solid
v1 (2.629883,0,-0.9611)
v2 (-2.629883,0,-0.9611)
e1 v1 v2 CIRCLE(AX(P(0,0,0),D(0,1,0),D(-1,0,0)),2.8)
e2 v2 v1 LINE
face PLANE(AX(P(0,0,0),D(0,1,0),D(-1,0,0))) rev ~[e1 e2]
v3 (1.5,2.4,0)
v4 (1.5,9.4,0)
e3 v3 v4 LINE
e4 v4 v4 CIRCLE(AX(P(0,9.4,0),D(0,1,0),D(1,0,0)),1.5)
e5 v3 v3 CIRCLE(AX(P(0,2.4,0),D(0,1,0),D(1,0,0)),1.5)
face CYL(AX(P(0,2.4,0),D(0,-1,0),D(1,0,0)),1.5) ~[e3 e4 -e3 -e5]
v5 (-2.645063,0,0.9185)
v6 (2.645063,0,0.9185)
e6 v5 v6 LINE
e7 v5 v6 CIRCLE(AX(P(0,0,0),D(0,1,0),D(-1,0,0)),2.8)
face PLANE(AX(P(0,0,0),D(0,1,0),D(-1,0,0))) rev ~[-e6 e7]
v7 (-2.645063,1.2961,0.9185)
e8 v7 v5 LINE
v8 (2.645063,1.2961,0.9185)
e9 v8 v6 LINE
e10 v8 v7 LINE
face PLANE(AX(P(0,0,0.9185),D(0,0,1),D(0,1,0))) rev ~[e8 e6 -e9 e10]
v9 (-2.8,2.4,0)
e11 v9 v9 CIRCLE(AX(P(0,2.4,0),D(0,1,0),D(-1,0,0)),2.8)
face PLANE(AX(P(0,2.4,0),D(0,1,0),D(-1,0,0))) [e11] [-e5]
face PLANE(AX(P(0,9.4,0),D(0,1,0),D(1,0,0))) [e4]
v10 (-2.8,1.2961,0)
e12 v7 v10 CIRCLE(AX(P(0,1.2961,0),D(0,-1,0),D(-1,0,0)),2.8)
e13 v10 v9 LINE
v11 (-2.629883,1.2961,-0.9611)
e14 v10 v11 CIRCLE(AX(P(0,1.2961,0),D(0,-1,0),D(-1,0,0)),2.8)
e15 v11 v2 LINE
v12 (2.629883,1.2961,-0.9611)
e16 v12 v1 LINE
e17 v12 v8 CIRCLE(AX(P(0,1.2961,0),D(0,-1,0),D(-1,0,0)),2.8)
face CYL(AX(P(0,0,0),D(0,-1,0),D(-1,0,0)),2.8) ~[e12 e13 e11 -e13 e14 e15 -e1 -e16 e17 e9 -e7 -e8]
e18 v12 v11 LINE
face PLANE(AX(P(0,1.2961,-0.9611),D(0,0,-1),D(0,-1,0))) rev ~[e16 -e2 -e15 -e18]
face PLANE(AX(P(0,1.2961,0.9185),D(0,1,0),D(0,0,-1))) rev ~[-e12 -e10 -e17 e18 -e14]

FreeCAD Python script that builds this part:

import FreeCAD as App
import Part
import Sketcher

V = App.Vector
Q = App.Units.Quantity


def add_polygon(sketch, points):
    """Adds a closed chain of lines whose ends are joined by coincident constraints."""
    first, n = sketch.GeometryCount, len(points)
    for a, b in zip(points, points[1:] + points[:1]):
        sketch.addGeometry(Part.LineSegment(App.Vector(*a, 0), App.Vector(*b, 0)), False)
    for i in range(n):
        sketch.addConstraint(Sketcher.Constraint("Coincident", first + i, 2, first + (i + 1) % n, 1))

doc = App.newDocument("Part")
body = doc.addObject("PartDesign::Body", "Body")

# Sketch on XZ plane
sketch1 = doc.addObject("Sketcher::SketchObject", "Sketch")
body.addObject(sketch1)
sketch1.AttachmentSupport = (doc.XZ_Plane, [""])
sketch1.MapMode = "FlatFace"
sketch1.addGeometry(Part.Circle(V(0, 0, 0), V(0, 0, 1), 2.8), False)
sketch1.addConstraint(Sketcher.Constraint("Coincident", 0, 3, -1, 1))
sketch1.addConstraint(Sketcher.Constraint("Diameter", 0, Q("5.6 mm")))
pad1 = doc.addObject("PartDesign::Pad", "Pad")
body.addObject(pad1)
pad1.Profile = sketch1
pad1.Length = 2.4
pad1.Reversed = True

# Sketch on YZ plane
sketch2 = doc.addObject("Sketcher::SketchObject", "Sketch001")
body.addObject(sketch2)
sketch2.AttachmentSupport = (doc.YZ_Plane, [""])
sketch2.MapMode = "FlatFace"
add_polygon(sketch2, [(1.3, 0.9), (0, 0.9), (0, -1), (1.3, -1)])  # lines 0-3
sketch2.addConstraint(Sketcher.Constraint("Horizontal", 0))
sketch2.addConstraint(Sketcher.Constraint("Vertical", 1))
sketch2.addConstraint(Sketcher.Constraint("Horizontal", 2))
sketch2.addConstraint(Sketcher.Constraint("Vertical", 3))
sketch2.addConstraint(Sketcher.Constraint("PointOnObject", 0, 2, -2))
sketch2.addConstraint(Sketcher.Constraint("DistanceX", 0, 2, 0, 1, Q("1.296 mm")))
sketch2.addConstraint(Sketcher.Constraint("DistanceY", 1, 2, 1, 1, Q("1.8796 mm")))
sketch2.addConstraint(Sketcher.Constraint("DistanceY", 1, 2, -1, 1, Q("0.961 mm")))
pocket1 = doc.addObject("PartDesign::Pocket", "Pocket")
body.addObject(pocket1)
pocket1.Profile = sketch2
pocket1.Type = "ThroughAll"
pocket1.Midplane = True

# Sketch on XZ plane
sketch3 = doc.addObject("Sketcher::SketchObject", "Sketch002")
body.addObject(sketch3)
sketch3.AttachmentSupport = (doc.XZ_Plane, [""])
sketch3.MapMode = "FlatFace"
sketch3.AttachmentOffset = App.Placement(V(0, 0, -2.4), App.Rotation())
sketch3.addGeometry(Part.Circle(V(0, 0, 0), V(0, 0, 1), 1.5), False)
sketch3.addConstraint(Sketcher.Constraint("Coincident", 0, 3, -1, 1))
sketch3.addConstraint(Sketcher.Constraint("Diameter", 0, Q("3 mm")))
pad2 = doc.addObject("PartDesign::Pad", "Pad001")
body.addObject(pad2)
pad2.Profile = sketch3
pad2.Length = 7
pad2.Reversed = True

doc.recompute()
